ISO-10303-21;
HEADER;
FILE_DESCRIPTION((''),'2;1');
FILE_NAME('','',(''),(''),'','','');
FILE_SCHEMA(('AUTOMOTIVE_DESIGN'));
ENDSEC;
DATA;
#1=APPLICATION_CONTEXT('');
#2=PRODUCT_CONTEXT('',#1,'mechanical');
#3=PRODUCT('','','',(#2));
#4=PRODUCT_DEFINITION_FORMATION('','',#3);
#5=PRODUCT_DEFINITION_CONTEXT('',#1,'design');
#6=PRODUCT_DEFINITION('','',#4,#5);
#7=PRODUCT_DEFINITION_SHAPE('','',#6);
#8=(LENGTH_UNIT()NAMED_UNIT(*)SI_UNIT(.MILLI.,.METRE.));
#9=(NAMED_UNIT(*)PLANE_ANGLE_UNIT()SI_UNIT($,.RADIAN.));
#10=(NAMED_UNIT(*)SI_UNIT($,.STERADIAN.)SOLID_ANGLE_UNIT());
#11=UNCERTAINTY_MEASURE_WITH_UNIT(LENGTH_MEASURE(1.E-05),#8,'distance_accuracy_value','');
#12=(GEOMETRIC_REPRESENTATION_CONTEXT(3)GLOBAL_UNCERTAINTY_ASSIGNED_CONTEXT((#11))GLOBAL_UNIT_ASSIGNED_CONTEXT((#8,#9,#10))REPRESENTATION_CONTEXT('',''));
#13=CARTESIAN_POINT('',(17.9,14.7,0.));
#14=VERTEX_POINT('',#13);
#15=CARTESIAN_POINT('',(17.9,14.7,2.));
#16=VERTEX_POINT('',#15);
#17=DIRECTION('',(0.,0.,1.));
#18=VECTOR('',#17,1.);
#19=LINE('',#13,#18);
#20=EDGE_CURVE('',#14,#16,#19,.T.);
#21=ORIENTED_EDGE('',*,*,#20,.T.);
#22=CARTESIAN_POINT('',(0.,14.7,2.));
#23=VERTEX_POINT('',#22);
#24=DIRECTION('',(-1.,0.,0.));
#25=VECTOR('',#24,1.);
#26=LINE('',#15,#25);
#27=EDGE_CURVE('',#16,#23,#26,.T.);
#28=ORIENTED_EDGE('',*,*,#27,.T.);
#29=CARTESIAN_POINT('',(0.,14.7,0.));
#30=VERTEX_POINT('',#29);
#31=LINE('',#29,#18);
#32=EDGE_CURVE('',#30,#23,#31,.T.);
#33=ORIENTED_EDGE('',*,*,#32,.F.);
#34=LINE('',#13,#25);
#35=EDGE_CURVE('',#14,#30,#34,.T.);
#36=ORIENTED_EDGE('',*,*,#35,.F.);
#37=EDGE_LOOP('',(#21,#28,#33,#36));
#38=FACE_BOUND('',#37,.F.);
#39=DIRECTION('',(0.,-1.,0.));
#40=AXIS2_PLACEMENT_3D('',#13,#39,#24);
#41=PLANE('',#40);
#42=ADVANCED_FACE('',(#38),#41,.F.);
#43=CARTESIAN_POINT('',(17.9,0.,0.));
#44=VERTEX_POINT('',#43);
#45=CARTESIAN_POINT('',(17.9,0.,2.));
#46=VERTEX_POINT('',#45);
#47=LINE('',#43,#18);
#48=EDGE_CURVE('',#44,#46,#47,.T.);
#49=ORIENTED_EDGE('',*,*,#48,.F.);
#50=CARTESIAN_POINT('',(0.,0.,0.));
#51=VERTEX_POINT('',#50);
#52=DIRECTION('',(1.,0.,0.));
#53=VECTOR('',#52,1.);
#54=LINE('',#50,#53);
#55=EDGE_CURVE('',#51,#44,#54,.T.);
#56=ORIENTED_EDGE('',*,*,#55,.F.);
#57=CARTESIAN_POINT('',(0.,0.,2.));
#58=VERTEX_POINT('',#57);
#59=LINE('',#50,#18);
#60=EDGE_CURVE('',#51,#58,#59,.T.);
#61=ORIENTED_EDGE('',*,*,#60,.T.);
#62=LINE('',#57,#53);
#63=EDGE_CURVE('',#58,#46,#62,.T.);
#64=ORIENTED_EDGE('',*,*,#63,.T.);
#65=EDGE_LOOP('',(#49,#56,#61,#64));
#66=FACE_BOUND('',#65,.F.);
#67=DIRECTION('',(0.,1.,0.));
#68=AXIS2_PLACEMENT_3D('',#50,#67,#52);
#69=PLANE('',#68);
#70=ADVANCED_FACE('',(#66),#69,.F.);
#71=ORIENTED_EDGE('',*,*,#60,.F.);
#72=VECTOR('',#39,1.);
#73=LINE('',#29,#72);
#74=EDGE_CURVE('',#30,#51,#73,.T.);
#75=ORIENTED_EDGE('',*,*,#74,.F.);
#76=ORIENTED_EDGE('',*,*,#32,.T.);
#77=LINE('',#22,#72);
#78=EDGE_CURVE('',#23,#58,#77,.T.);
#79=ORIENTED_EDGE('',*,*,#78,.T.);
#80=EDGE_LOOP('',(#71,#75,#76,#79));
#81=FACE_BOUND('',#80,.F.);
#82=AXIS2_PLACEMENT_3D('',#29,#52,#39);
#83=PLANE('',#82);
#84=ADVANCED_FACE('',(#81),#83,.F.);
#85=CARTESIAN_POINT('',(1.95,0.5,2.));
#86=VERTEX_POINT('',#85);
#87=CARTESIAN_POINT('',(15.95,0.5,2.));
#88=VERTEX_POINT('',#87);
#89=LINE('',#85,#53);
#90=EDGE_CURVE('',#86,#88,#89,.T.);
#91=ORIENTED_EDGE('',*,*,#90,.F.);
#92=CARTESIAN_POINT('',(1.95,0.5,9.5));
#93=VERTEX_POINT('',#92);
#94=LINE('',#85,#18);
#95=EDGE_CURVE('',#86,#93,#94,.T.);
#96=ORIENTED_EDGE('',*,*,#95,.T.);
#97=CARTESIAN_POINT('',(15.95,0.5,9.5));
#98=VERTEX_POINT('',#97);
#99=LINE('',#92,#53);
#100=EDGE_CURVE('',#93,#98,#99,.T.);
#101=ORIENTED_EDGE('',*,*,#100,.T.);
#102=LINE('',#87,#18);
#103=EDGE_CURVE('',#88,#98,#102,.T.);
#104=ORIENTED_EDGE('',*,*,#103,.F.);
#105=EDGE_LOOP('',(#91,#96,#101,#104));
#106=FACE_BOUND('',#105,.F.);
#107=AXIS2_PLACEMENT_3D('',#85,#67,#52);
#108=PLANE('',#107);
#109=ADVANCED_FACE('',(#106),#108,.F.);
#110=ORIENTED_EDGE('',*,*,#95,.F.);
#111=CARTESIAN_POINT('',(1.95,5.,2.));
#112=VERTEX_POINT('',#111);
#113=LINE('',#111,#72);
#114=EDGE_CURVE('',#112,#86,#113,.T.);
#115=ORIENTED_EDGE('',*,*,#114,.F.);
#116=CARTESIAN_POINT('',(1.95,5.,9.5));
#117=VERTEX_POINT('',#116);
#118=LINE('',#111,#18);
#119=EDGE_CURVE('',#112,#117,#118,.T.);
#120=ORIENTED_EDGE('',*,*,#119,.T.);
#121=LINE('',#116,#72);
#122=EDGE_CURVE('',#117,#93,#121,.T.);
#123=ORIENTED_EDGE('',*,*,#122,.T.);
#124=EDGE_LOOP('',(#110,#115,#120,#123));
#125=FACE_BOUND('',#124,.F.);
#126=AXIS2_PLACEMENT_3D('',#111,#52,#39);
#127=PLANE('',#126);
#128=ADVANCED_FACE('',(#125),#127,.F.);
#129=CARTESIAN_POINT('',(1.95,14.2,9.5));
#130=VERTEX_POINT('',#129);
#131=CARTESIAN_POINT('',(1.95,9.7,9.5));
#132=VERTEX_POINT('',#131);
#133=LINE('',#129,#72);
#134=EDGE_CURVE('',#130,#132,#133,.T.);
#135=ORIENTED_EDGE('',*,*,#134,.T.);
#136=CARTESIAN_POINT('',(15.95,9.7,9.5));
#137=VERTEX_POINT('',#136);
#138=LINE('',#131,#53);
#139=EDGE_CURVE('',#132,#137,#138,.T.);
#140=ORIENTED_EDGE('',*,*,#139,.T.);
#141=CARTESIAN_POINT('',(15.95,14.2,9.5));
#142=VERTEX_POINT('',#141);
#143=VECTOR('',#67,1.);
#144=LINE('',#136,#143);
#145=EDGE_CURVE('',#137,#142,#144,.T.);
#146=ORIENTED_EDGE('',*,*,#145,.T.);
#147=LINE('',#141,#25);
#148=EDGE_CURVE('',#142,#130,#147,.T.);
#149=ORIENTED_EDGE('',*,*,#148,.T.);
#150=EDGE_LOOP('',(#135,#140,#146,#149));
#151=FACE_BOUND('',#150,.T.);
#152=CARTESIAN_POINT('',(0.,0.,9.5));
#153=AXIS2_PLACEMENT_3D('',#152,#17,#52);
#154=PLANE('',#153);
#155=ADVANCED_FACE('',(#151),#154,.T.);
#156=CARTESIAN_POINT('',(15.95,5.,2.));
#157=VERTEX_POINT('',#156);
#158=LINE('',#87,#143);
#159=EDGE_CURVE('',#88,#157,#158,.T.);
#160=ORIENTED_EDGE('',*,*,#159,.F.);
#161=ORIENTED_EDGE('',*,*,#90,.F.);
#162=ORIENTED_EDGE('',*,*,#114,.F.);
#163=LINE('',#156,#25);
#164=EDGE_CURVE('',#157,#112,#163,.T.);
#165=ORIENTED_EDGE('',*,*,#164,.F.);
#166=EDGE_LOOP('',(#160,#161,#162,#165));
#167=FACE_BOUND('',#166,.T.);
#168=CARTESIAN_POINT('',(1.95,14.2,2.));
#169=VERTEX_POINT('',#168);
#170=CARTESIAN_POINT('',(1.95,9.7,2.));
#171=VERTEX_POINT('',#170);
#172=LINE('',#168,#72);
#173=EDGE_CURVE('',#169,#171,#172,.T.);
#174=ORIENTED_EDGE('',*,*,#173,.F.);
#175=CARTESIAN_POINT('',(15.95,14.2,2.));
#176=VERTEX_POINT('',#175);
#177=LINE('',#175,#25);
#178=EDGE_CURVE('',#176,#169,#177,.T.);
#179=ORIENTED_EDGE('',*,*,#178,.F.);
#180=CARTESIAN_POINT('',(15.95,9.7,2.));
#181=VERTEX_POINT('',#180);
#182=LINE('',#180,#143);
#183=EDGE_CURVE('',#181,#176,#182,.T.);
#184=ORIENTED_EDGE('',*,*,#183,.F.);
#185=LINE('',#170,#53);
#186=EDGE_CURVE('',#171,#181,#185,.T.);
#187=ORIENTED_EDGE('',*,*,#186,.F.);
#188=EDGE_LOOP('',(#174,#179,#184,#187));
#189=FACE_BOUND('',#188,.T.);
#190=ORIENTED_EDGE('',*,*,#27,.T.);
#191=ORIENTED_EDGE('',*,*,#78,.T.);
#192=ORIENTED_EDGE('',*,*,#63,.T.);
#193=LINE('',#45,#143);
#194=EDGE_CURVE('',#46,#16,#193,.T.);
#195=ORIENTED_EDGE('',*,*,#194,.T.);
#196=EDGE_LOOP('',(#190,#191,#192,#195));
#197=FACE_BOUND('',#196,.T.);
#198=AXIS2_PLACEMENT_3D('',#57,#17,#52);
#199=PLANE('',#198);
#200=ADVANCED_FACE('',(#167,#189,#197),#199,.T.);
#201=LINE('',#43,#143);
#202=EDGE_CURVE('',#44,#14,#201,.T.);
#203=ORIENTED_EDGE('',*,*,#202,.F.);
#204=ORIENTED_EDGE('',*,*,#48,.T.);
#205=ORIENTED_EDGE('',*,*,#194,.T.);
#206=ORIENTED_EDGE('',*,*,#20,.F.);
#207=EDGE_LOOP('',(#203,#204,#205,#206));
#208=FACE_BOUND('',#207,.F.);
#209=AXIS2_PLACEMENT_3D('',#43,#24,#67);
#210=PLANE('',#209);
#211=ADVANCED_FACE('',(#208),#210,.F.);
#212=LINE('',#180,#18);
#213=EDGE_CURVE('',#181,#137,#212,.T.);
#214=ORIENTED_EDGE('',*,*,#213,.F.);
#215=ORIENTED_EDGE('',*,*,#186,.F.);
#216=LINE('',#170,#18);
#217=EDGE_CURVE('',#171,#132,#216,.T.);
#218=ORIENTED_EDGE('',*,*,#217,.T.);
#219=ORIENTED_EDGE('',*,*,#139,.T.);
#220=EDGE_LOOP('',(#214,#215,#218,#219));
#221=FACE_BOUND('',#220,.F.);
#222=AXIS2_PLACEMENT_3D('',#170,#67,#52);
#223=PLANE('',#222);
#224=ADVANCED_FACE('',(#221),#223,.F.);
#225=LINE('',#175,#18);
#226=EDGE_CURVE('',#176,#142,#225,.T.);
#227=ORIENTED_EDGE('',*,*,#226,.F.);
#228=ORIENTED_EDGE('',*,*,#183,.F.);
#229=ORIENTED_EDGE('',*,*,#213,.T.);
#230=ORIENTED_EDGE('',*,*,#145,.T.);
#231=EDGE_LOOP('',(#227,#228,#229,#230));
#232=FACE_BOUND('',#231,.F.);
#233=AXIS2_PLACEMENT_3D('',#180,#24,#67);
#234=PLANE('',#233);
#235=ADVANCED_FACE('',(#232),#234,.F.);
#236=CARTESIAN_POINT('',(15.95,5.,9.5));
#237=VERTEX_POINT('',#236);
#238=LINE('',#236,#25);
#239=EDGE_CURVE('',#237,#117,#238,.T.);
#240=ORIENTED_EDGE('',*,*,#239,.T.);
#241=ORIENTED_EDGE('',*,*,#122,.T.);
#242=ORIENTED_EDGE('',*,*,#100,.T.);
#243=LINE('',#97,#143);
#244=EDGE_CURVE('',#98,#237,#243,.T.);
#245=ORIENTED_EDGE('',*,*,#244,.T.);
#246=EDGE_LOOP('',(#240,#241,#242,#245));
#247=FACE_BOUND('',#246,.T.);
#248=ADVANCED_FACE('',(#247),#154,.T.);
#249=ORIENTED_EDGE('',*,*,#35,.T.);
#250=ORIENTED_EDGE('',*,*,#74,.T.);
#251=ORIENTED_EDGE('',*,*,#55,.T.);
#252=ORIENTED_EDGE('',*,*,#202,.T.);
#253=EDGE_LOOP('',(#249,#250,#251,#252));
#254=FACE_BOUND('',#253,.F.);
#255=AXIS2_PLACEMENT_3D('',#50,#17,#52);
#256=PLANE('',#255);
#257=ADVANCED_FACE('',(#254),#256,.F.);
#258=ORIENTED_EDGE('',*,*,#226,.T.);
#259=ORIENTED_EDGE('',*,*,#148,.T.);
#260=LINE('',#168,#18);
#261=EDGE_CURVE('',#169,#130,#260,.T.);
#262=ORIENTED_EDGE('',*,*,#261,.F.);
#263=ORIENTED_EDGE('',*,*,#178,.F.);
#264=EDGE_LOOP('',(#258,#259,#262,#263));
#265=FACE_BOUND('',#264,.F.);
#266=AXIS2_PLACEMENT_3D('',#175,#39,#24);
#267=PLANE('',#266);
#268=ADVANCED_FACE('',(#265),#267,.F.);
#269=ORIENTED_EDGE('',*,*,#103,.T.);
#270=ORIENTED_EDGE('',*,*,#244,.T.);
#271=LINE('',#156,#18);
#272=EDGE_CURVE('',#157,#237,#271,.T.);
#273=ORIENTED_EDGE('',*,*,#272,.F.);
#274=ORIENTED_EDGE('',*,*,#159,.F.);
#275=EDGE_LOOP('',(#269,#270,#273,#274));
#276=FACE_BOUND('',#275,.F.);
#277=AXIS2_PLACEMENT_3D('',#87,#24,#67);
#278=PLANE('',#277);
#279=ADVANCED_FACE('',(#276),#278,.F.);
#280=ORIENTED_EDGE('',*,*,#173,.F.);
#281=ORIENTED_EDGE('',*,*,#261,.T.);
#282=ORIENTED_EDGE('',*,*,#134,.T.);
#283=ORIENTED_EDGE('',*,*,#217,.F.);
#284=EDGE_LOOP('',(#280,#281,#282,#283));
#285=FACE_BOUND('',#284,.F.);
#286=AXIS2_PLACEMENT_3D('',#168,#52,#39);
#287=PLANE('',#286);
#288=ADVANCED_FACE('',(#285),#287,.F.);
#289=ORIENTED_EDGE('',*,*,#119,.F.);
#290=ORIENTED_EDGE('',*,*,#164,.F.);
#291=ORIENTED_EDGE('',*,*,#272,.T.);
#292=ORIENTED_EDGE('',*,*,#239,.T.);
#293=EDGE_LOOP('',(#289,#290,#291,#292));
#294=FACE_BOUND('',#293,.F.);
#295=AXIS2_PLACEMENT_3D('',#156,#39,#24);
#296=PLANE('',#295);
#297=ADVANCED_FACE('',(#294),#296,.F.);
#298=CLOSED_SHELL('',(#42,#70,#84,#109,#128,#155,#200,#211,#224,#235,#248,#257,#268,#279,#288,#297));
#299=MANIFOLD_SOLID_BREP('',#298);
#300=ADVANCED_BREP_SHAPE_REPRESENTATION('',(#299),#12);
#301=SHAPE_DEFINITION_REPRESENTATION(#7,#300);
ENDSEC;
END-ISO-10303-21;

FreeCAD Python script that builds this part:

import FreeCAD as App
import Part
import Sketcher

doc = App.newDocument("Part")
body = doc.addObject("PartDesign::Body", "Body")

# Sketch on XY plane
sketch1 = body.newObject("Sketcher::SketchObject", "Sketch")
sketch1.AttachmentSupport = (doc.getObject("XY_Plane"), [""])
sketch1.MapMode = "FlatFace"
sketch1.addGeometry(Part.LineSegment(App.Vector(0, 15, 0), App.Vector(0, 0, 0)), False)
sketch1.addGeometry(Part.LineSegment(App.Vector(0, 0, 0), App.Vector(18, 0, 0)), False)
sketch1.addGeometry(Part.LineSegment(App.Vector(18, 0, 0), App.Vector(18, 15, 0)), False)
sketch1.addGeometry(Part.LineSegment(App.Vector(18, 15, 0), App.Vector(0, 15, 0)), False)
sketch1.addConstraint(Sketcher.Constraint("Coincident", 0, 2, 1, 1))
sketch1.addConstraint(Sketcher.Constraint("Coincident", 1, 2, 2, 1))
sketch1.addConstraint(Sketcher.Constraint("Coincident", 2, 2, 3, 1))
sketch1.addConstraint(Sketcher.Constraint("Coincident", 3, 2, 0, 1))
sketch1.addConstraint(Sketcher.Constraint("Vertical", 0))
sketch1.addConstraint(Sketcher.Constraint("Horizontal", 1))
sketch1.addConstraint(Sketcher.Constraint("Vertical", 2))
sketch1.addConstraint(Sketcher.Constraint("Horizontal", 3))
sketch1.addConstraint(Sketcher.Constraint("Coincident", 0, 2, -1, 1))
sketch1.addConstraint(Sketcher.Constraint("DistanceX", 1, 1, 1, 2, 17.9))
sketch1.addConstraint(Sketcher.Constraint("DistanceY", 0, 2, 0, 1, 14.7))
pad1 = body.newObject("PartDesign::Pad", "Pad")
pad1.Profile = sketch1
pad1.Length = 2

# Sketch on XY plane
sketch2 = body.newObject("Sketcher::SketchObject", "Sketch001")
sketch2.AttachmentSupport = (doc.getObject("XY_Plane"), [""])
sketch2.MapMode = "FlatFace"
sketch2.AttachmentOffset = App.Placement(App.Vector(0, 0, 2), App.Rotation())
sketch2.addGeometry(Part.LineSegment(App.Vector(1.9, 5, 0), App.Vector(1.9, 0.5, 0)), False)
sketch2.addGeometry(Part.LineSegment(App.Vector(1.9, 0.5, 0), App.Vector(15.9, 0.5, 0)), False)
sketch2.addGeometry(Part.LineSegment(App.Vector(15.9, 0.5, 0), App.Vector(15.9, 5, 0)), False)
sketch2.addGeometry(Part.LineSegment(App.Vector(15.9, 5, 0), App.Vector(1.9, 5, 0)), False)
sketch2.addGeometry(Part.LineSegment(App.Vector(1.9, 14.2, 0), App.Vector(1.9, 9.7, 0)), False)
sketch2.addGeometry(Part.LineSegment(App.Vector(1.9, 9.7, 0), App.Vector(15.9, 9.7, 0)), False)
sketch2.addGeometry(Part.LineSegment(App.Vector(15.9, 9.7, 0), App.Vector(15.9, 14.2, 0)), False)
sketch2.addGeometry(Part.LineSegment(App.Vector(15.9, 14.2, 0), App.Vector(1.9, 14.2, 0)), False)
sketch2.addConstraint(Sketcher.Constraint("Coincident", 0, 2, 1, 1))
sketch2.addConstraint(Sketcher.Constraint("Coincident", 1, 2, 2, 1))
sketch2.addConstraint(Sketcher.Constraint("Coincident", 2, 2, 3, 1))
sketch2.addConstraint(Sketcher.Constraint("Coincident", 3, 2, 0, 1))
sketch2.addConstraint(Sketcher.Constraint("Coincident", 4, 2, 5, 1))
sketch2.addConstraint(Sketcher.Constraint("Coincident", 5, 2, 6, 1))
sketch2.addConstraint(Sketcher.Constraint("Coincident", 6, 2, 7, 1))
sketch2.addConstraint(Sketcher.Constraint("Coincident", 7, 2, 4, 1))
sketch2.addConstraint(Sketcher.Constraint("Vertical", 0))
sketch2.addConstraint(Sketcher.Constraint("Horizontal", 1))
sketch2.addConstraint(Sketcher.Constraint("Vertical", 2))
sketch2.addConstraint(Sketcher.Constraint("Horizontal", 3))
sketch2.addConstraint(Sketcher.Constraint("Vertical", 4))
sketch2.addConstraint(Sketcher.Constraint("Horizontal", 5))
sketch2.addConstraint(Sketcher.Constraint("Vertical", 6))
sketch2.addConstraint(Sketcher.Constraint("Horizontal", 7))
sketch2.addConstraint(Sketcher.Constraint("Vertical", 3, 2, 4, 2))
sketch2.addConstraint(Sketcher.Constraint("Vertical", 2, 2, 5, 2))
sketch2.addConstraint(Sketcher.Constraint("Equal", 2, 4))
sketch2.addConstraint(Sketcher.Constraint("DistanceX", 1, 1, 1, 2, 14.0))
sketch2.addConstraint(Sketcher.Constraint("DistanceY", 0, 2, 0, 1, 4.5))
sketch2.addConstraint(Sketcher.Constraint("DistanceY", -1, 1, 0, 2, 0.5))
sketch2.addConstraint(Sketcher.Constraint("DistanceX", -1, 1, 0, 2, 1.95))
sketch2.addConstraint(Sketcher.Constraint("DistanceY", -1, 1, 4, 2, 9.7))
pad2 = body.newObject("PartDesign::Pad", "Pad001")
pad2.Profile = sketch2
pad2.Length = 7.5

doc.recompute()
